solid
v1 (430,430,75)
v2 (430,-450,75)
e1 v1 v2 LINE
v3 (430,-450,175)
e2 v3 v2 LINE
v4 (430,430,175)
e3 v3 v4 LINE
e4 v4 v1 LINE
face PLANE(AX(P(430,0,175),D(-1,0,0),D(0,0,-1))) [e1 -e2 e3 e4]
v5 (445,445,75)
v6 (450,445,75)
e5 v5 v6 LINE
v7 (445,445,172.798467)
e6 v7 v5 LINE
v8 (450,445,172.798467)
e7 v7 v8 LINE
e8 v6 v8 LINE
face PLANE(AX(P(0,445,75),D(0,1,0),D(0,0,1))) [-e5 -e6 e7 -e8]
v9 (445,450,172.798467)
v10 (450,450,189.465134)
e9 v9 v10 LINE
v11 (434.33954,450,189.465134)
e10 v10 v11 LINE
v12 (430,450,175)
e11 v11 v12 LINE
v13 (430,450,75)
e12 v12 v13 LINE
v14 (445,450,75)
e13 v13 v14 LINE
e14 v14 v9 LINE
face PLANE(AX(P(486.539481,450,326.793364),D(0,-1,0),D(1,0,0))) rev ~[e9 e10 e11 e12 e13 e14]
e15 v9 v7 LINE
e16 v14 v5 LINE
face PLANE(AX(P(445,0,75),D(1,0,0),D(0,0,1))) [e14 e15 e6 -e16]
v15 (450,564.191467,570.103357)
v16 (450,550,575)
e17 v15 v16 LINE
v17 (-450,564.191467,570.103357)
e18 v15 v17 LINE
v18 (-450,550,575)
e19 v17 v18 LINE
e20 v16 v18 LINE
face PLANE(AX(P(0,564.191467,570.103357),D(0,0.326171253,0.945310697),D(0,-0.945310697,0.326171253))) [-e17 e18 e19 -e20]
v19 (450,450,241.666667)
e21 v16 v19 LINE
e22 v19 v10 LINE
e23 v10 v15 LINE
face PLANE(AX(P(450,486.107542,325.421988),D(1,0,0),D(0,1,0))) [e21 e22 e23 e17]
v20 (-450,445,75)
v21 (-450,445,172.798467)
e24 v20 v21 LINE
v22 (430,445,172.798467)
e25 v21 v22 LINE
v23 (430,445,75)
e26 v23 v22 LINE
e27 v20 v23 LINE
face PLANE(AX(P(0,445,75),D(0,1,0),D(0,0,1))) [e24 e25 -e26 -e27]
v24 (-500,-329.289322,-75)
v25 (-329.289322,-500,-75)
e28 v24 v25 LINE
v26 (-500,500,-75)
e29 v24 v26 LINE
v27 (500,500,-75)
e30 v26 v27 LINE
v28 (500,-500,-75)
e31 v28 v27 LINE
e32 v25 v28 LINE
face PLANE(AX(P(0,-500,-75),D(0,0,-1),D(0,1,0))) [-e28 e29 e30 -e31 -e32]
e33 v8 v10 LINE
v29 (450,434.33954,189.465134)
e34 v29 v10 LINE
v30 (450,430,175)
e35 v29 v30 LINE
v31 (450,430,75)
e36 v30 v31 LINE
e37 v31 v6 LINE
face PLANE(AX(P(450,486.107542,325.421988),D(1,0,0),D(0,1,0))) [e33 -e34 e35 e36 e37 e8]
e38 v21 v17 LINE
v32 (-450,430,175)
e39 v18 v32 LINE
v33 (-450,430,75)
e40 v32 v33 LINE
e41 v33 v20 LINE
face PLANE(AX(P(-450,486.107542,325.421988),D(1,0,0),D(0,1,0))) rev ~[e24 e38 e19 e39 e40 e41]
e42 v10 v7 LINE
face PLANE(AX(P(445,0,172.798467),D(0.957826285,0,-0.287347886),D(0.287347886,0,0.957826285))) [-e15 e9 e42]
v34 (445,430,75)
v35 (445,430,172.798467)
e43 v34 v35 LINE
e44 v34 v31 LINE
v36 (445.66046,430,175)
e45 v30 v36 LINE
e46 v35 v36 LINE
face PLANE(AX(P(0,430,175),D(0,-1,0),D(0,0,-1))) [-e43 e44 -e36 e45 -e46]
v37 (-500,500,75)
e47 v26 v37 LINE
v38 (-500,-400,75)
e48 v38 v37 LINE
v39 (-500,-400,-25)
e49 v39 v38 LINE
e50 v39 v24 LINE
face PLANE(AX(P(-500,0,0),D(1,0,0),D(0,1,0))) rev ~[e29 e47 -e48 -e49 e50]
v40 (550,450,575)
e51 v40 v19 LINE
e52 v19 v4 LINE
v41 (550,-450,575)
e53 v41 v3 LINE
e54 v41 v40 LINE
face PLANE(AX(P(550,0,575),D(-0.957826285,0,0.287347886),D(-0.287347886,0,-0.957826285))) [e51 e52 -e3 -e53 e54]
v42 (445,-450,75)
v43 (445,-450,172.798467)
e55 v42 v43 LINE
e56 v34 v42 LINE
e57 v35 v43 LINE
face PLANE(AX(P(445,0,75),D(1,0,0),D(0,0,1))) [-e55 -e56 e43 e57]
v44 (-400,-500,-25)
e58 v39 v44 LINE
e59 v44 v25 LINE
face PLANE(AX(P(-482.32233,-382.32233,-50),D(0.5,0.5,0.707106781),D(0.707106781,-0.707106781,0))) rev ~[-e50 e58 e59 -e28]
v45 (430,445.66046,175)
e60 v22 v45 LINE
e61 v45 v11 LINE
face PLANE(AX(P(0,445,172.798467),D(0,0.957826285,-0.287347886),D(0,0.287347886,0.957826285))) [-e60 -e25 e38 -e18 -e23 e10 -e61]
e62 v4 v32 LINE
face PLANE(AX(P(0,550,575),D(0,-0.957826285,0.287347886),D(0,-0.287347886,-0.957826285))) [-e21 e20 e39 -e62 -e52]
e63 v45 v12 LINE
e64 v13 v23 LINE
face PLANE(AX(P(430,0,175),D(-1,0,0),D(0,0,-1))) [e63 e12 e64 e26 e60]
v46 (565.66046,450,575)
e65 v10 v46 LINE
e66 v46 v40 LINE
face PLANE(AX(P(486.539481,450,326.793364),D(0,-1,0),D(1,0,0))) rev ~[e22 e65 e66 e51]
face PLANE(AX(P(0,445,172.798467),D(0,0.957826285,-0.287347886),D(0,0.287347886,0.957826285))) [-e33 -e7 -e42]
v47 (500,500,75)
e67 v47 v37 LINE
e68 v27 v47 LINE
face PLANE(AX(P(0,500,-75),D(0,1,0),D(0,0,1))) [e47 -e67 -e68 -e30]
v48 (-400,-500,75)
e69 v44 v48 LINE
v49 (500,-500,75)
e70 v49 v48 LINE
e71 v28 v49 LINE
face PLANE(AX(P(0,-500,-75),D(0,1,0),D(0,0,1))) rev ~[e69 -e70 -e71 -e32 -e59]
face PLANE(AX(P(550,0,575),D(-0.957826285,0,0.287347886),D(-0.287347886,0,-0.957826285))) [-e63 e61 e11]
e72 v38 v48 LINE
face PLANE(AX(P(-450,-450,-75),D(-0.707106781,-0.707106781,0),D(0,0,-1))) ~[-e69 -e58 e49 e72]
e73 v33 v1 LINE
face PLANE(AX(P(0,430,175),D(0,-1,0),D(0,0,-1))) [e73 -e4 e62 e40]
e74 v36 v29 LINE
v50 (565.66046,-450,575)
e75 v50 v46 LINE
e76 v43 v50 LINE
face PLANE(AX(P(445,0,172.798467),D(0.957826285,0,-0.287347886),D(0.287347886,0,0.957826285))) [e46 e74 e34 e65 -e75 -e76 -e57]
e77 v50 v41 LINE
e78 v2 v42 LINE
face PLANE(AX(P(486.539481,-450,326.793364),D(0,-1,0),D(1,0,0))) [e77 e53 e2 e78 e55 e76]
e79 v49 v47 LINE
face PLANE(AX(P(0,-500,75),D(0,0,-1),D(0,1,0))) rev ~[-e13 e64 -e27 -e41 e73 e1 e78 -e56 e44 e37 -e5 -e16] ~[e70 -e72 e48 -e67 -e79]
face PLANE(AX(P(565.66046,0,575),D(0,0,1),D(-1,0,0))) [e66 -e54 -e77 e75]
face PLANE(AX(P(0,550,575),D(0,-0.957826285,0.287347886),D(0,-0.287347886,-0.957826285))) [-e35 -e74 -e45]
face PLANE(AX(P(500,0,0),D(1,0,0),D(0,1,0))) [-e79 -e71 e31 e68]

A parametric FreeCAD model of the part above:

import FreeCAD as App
import Part
import Sketcher

V = App.Vector
Q = App.Units.Quantity


def edges_at(feature, points):
    """Names of the edges that pass closest to the given points."""
    edges = feature.Shape.Edges
    near = lambda p: min(range(len(edges)), key=lambda i: edges[i].distToShape(Part.Vertex(*p))[0])
    return sorted({f"Edge{near(p) + 1}" for p in points})


def add_polygon(sketch, points):
    """Adds a closed chain of lines whose ends are joined by coincident constraints."""
    first, n = sketch.GeometryCount, len(points)
    for a, b in zip(points, points[1:] + points[:1]):
        sketch.addGeometry(Part.LineSegment(App.Vector(*a, 0), App.Vector(*b, 0)), False)
    for i in range(n):
        sketch.addConstraint(Sketcher.Constraint("Coincident", first + i, 2, first + (i + 1) % n, 1))

doc = App.newDocument("Part")
body = doc.addObject("PartDesign::Body", "Body")

sketch1 = body.newObject("Sketcher::SketchObject", "Sketch")
sketch1.AttachmentSupport = (doc.getObject("YZ_Plane"), [""])
sketch1.MapMode = "FlatFace"
add_polygon(sketch1, [(-500, 75), (-500, -75), (500, -75), (500, 75)])
sketch1.addConstraint(Sketcher.Constraint("Vertical", 0))
sketch1.addConstraint(Sketcher.Constraint("Horizontal", 1))
sketch1.addConstraint(Sketcher.Constraint("Vertical", 2))
sketch1.addConstraint(Sketcher.Constraint("Horizontal", 3))
sketch1.addConstraint(Sketcher.Constraint("Symmetric", 0, 2, 2, 2, -1, 1))
sketch1.addConstraint(Sketcher.Constraint("DistanceX", 1, 1, 1, 2, Q("1000 mm")))
sketch1.addConstraint(Sketcher.Constraint("DistanceY", 0, 2, 0, 1, Q("150 mm")))
pad1 = body.newObject("PartDesign::Pad", "Pad")
pad1.Profile = sketch1
pad1.Length = 1000
pad1.Midplane = True

sketch2 = body.newObject("Sketcher::SketchObject", "Sketch001")
sketch2.AttachmentSupport = (doc.getObject("YZ_Plane"), [""])
sketch2.MapMode = "FlatFace"
add_polygon(sketch2, [(430, 175), (430, 75), (445, 75), (445, 173), (564, 570), (550, 575)])
sketch2.addConstraint(Sketcher.Constraint("Vertical", 0))
sketch2.addConstraint(Sketcher.Constraint("Horizontal", 1))
sketch2.addConstraint(Sketcher.Constraint("Vertical", 2))
sketch2.addConstraint(Sketcher.Constraint("Parallel", 3, 5))
sketch2.addConstraint(Sketcher.Constraint("DistanceX", 1, 1, 1, 2, Q("15 mm")))
sketch2.addConstraint(Sketcher.Constraint("DistanceY", 0, 2, 0, 1, Q("100 mm")))
sketch2.addConstraint(Sketcher.Constraint("DistanceX", -1, 1, 0, 2, Q("430 mm")))
sketch2.addConstraint(Sketcher.Constraint("DistanceY", -1, 1, 0, 2, Q("75 mm")))
sketch2.addConstraint(Sketcher.Constraint("DistanceX", -1, 1, 4, 2, Q("550 mm")))
sketch2.addConstraint(Sketcher.Constraint("DistanceY", -1, 1, 4, 2, Q("575 mm")))
sketch2.addConstraint(Sketcher.Constraint("Distance", 4, Q("15.01249 mm")))
sketch2.addConstraint(Sketcher.Constraint("DistanceY", 2, 1, 2, 2, Q("97.798467 mm")))
pad2 = body.newObject("PartDesign::Pad", "Pad001")
pad2.Profile = sketch2
pad2.Length = 900
pad2.Midplane = True

sketch3 = body.newObject("Sketcher::SketchObject", "Sketch002")
sketch3.AttachmentSupport = (doc.getObject("XZ_Plane"), [""])
sketch3.MapMode = "FlatFace"
add_polygon(sketch3, [(430, 175), (430, 75), (445, 75), (445, 173), (566, 575), (550, 575)])
sketch3.addConstraint(Sketcher.Constraint("Vertical", 0))
sketch3.addConstraint(Sketcher.Constraint("Horizontal", 1))
sketch3.addConstraint(Sketcher.Constraint("Vertical", 2))
sketch3.addConstraint(Sketcher.Constraint("Horizontal", 4))
sketch3.addConstraint(Sketcher.Constraint("Parallel", 3, 5))
sketch3.addConstraint(Sketcher.Constraint("DistanceX", 1, 1, 1, 2, Q("15 mm")))
sketch3.addConstraint(Sketcher.Constraint("DistanceY", 0, 2, 0, 1, Q("100 mm")))
sketch3.addConstraint(Sketcher.Constraint("DistanceX", -1, 1, 0, 2, Q("430 mm")))
sketch3.addConstraint(Sketcher.Constraint("DistanceY", -1, 1, 0, 2, Q("75 mm")))
sketch3.addConstraint(Sketcher.Constraint("DistanceY", -1, 1, 3, 2, Q("575 mm")))
sketch3.addConstraint(Sketcher.Constraint("DistanceX", -1, 1, 4, 2, Q("550 mm")))
sketch3.addConstraint(Sketcher.Constraint("DistanceX", 4, 2, 4, 1, Q("15.66046 mm")))
pad3 = body.newObject("PartDesign::Pad", "Pad002")
pad3.Profile = sketch3
pad3.Length = 900
pad3.Midplane = True
doc.recompute()

chamfer = body.newObject("PartDesign::Chamfer", "Chamfer")
chamfer.Base = (pad3, edges_at(pad3, [(-500, -500, 0)]))
chamfer.Size = 100
doc.recompute()

chamfer2 = body.newObject("PartDesign::Chamfer", "Chamfer001")
chamfer2.Base = (chamfer, edges_at(chamfer, [(-450, -450, -75)]))
chamfer2.Size = 50

doc.recompute()
